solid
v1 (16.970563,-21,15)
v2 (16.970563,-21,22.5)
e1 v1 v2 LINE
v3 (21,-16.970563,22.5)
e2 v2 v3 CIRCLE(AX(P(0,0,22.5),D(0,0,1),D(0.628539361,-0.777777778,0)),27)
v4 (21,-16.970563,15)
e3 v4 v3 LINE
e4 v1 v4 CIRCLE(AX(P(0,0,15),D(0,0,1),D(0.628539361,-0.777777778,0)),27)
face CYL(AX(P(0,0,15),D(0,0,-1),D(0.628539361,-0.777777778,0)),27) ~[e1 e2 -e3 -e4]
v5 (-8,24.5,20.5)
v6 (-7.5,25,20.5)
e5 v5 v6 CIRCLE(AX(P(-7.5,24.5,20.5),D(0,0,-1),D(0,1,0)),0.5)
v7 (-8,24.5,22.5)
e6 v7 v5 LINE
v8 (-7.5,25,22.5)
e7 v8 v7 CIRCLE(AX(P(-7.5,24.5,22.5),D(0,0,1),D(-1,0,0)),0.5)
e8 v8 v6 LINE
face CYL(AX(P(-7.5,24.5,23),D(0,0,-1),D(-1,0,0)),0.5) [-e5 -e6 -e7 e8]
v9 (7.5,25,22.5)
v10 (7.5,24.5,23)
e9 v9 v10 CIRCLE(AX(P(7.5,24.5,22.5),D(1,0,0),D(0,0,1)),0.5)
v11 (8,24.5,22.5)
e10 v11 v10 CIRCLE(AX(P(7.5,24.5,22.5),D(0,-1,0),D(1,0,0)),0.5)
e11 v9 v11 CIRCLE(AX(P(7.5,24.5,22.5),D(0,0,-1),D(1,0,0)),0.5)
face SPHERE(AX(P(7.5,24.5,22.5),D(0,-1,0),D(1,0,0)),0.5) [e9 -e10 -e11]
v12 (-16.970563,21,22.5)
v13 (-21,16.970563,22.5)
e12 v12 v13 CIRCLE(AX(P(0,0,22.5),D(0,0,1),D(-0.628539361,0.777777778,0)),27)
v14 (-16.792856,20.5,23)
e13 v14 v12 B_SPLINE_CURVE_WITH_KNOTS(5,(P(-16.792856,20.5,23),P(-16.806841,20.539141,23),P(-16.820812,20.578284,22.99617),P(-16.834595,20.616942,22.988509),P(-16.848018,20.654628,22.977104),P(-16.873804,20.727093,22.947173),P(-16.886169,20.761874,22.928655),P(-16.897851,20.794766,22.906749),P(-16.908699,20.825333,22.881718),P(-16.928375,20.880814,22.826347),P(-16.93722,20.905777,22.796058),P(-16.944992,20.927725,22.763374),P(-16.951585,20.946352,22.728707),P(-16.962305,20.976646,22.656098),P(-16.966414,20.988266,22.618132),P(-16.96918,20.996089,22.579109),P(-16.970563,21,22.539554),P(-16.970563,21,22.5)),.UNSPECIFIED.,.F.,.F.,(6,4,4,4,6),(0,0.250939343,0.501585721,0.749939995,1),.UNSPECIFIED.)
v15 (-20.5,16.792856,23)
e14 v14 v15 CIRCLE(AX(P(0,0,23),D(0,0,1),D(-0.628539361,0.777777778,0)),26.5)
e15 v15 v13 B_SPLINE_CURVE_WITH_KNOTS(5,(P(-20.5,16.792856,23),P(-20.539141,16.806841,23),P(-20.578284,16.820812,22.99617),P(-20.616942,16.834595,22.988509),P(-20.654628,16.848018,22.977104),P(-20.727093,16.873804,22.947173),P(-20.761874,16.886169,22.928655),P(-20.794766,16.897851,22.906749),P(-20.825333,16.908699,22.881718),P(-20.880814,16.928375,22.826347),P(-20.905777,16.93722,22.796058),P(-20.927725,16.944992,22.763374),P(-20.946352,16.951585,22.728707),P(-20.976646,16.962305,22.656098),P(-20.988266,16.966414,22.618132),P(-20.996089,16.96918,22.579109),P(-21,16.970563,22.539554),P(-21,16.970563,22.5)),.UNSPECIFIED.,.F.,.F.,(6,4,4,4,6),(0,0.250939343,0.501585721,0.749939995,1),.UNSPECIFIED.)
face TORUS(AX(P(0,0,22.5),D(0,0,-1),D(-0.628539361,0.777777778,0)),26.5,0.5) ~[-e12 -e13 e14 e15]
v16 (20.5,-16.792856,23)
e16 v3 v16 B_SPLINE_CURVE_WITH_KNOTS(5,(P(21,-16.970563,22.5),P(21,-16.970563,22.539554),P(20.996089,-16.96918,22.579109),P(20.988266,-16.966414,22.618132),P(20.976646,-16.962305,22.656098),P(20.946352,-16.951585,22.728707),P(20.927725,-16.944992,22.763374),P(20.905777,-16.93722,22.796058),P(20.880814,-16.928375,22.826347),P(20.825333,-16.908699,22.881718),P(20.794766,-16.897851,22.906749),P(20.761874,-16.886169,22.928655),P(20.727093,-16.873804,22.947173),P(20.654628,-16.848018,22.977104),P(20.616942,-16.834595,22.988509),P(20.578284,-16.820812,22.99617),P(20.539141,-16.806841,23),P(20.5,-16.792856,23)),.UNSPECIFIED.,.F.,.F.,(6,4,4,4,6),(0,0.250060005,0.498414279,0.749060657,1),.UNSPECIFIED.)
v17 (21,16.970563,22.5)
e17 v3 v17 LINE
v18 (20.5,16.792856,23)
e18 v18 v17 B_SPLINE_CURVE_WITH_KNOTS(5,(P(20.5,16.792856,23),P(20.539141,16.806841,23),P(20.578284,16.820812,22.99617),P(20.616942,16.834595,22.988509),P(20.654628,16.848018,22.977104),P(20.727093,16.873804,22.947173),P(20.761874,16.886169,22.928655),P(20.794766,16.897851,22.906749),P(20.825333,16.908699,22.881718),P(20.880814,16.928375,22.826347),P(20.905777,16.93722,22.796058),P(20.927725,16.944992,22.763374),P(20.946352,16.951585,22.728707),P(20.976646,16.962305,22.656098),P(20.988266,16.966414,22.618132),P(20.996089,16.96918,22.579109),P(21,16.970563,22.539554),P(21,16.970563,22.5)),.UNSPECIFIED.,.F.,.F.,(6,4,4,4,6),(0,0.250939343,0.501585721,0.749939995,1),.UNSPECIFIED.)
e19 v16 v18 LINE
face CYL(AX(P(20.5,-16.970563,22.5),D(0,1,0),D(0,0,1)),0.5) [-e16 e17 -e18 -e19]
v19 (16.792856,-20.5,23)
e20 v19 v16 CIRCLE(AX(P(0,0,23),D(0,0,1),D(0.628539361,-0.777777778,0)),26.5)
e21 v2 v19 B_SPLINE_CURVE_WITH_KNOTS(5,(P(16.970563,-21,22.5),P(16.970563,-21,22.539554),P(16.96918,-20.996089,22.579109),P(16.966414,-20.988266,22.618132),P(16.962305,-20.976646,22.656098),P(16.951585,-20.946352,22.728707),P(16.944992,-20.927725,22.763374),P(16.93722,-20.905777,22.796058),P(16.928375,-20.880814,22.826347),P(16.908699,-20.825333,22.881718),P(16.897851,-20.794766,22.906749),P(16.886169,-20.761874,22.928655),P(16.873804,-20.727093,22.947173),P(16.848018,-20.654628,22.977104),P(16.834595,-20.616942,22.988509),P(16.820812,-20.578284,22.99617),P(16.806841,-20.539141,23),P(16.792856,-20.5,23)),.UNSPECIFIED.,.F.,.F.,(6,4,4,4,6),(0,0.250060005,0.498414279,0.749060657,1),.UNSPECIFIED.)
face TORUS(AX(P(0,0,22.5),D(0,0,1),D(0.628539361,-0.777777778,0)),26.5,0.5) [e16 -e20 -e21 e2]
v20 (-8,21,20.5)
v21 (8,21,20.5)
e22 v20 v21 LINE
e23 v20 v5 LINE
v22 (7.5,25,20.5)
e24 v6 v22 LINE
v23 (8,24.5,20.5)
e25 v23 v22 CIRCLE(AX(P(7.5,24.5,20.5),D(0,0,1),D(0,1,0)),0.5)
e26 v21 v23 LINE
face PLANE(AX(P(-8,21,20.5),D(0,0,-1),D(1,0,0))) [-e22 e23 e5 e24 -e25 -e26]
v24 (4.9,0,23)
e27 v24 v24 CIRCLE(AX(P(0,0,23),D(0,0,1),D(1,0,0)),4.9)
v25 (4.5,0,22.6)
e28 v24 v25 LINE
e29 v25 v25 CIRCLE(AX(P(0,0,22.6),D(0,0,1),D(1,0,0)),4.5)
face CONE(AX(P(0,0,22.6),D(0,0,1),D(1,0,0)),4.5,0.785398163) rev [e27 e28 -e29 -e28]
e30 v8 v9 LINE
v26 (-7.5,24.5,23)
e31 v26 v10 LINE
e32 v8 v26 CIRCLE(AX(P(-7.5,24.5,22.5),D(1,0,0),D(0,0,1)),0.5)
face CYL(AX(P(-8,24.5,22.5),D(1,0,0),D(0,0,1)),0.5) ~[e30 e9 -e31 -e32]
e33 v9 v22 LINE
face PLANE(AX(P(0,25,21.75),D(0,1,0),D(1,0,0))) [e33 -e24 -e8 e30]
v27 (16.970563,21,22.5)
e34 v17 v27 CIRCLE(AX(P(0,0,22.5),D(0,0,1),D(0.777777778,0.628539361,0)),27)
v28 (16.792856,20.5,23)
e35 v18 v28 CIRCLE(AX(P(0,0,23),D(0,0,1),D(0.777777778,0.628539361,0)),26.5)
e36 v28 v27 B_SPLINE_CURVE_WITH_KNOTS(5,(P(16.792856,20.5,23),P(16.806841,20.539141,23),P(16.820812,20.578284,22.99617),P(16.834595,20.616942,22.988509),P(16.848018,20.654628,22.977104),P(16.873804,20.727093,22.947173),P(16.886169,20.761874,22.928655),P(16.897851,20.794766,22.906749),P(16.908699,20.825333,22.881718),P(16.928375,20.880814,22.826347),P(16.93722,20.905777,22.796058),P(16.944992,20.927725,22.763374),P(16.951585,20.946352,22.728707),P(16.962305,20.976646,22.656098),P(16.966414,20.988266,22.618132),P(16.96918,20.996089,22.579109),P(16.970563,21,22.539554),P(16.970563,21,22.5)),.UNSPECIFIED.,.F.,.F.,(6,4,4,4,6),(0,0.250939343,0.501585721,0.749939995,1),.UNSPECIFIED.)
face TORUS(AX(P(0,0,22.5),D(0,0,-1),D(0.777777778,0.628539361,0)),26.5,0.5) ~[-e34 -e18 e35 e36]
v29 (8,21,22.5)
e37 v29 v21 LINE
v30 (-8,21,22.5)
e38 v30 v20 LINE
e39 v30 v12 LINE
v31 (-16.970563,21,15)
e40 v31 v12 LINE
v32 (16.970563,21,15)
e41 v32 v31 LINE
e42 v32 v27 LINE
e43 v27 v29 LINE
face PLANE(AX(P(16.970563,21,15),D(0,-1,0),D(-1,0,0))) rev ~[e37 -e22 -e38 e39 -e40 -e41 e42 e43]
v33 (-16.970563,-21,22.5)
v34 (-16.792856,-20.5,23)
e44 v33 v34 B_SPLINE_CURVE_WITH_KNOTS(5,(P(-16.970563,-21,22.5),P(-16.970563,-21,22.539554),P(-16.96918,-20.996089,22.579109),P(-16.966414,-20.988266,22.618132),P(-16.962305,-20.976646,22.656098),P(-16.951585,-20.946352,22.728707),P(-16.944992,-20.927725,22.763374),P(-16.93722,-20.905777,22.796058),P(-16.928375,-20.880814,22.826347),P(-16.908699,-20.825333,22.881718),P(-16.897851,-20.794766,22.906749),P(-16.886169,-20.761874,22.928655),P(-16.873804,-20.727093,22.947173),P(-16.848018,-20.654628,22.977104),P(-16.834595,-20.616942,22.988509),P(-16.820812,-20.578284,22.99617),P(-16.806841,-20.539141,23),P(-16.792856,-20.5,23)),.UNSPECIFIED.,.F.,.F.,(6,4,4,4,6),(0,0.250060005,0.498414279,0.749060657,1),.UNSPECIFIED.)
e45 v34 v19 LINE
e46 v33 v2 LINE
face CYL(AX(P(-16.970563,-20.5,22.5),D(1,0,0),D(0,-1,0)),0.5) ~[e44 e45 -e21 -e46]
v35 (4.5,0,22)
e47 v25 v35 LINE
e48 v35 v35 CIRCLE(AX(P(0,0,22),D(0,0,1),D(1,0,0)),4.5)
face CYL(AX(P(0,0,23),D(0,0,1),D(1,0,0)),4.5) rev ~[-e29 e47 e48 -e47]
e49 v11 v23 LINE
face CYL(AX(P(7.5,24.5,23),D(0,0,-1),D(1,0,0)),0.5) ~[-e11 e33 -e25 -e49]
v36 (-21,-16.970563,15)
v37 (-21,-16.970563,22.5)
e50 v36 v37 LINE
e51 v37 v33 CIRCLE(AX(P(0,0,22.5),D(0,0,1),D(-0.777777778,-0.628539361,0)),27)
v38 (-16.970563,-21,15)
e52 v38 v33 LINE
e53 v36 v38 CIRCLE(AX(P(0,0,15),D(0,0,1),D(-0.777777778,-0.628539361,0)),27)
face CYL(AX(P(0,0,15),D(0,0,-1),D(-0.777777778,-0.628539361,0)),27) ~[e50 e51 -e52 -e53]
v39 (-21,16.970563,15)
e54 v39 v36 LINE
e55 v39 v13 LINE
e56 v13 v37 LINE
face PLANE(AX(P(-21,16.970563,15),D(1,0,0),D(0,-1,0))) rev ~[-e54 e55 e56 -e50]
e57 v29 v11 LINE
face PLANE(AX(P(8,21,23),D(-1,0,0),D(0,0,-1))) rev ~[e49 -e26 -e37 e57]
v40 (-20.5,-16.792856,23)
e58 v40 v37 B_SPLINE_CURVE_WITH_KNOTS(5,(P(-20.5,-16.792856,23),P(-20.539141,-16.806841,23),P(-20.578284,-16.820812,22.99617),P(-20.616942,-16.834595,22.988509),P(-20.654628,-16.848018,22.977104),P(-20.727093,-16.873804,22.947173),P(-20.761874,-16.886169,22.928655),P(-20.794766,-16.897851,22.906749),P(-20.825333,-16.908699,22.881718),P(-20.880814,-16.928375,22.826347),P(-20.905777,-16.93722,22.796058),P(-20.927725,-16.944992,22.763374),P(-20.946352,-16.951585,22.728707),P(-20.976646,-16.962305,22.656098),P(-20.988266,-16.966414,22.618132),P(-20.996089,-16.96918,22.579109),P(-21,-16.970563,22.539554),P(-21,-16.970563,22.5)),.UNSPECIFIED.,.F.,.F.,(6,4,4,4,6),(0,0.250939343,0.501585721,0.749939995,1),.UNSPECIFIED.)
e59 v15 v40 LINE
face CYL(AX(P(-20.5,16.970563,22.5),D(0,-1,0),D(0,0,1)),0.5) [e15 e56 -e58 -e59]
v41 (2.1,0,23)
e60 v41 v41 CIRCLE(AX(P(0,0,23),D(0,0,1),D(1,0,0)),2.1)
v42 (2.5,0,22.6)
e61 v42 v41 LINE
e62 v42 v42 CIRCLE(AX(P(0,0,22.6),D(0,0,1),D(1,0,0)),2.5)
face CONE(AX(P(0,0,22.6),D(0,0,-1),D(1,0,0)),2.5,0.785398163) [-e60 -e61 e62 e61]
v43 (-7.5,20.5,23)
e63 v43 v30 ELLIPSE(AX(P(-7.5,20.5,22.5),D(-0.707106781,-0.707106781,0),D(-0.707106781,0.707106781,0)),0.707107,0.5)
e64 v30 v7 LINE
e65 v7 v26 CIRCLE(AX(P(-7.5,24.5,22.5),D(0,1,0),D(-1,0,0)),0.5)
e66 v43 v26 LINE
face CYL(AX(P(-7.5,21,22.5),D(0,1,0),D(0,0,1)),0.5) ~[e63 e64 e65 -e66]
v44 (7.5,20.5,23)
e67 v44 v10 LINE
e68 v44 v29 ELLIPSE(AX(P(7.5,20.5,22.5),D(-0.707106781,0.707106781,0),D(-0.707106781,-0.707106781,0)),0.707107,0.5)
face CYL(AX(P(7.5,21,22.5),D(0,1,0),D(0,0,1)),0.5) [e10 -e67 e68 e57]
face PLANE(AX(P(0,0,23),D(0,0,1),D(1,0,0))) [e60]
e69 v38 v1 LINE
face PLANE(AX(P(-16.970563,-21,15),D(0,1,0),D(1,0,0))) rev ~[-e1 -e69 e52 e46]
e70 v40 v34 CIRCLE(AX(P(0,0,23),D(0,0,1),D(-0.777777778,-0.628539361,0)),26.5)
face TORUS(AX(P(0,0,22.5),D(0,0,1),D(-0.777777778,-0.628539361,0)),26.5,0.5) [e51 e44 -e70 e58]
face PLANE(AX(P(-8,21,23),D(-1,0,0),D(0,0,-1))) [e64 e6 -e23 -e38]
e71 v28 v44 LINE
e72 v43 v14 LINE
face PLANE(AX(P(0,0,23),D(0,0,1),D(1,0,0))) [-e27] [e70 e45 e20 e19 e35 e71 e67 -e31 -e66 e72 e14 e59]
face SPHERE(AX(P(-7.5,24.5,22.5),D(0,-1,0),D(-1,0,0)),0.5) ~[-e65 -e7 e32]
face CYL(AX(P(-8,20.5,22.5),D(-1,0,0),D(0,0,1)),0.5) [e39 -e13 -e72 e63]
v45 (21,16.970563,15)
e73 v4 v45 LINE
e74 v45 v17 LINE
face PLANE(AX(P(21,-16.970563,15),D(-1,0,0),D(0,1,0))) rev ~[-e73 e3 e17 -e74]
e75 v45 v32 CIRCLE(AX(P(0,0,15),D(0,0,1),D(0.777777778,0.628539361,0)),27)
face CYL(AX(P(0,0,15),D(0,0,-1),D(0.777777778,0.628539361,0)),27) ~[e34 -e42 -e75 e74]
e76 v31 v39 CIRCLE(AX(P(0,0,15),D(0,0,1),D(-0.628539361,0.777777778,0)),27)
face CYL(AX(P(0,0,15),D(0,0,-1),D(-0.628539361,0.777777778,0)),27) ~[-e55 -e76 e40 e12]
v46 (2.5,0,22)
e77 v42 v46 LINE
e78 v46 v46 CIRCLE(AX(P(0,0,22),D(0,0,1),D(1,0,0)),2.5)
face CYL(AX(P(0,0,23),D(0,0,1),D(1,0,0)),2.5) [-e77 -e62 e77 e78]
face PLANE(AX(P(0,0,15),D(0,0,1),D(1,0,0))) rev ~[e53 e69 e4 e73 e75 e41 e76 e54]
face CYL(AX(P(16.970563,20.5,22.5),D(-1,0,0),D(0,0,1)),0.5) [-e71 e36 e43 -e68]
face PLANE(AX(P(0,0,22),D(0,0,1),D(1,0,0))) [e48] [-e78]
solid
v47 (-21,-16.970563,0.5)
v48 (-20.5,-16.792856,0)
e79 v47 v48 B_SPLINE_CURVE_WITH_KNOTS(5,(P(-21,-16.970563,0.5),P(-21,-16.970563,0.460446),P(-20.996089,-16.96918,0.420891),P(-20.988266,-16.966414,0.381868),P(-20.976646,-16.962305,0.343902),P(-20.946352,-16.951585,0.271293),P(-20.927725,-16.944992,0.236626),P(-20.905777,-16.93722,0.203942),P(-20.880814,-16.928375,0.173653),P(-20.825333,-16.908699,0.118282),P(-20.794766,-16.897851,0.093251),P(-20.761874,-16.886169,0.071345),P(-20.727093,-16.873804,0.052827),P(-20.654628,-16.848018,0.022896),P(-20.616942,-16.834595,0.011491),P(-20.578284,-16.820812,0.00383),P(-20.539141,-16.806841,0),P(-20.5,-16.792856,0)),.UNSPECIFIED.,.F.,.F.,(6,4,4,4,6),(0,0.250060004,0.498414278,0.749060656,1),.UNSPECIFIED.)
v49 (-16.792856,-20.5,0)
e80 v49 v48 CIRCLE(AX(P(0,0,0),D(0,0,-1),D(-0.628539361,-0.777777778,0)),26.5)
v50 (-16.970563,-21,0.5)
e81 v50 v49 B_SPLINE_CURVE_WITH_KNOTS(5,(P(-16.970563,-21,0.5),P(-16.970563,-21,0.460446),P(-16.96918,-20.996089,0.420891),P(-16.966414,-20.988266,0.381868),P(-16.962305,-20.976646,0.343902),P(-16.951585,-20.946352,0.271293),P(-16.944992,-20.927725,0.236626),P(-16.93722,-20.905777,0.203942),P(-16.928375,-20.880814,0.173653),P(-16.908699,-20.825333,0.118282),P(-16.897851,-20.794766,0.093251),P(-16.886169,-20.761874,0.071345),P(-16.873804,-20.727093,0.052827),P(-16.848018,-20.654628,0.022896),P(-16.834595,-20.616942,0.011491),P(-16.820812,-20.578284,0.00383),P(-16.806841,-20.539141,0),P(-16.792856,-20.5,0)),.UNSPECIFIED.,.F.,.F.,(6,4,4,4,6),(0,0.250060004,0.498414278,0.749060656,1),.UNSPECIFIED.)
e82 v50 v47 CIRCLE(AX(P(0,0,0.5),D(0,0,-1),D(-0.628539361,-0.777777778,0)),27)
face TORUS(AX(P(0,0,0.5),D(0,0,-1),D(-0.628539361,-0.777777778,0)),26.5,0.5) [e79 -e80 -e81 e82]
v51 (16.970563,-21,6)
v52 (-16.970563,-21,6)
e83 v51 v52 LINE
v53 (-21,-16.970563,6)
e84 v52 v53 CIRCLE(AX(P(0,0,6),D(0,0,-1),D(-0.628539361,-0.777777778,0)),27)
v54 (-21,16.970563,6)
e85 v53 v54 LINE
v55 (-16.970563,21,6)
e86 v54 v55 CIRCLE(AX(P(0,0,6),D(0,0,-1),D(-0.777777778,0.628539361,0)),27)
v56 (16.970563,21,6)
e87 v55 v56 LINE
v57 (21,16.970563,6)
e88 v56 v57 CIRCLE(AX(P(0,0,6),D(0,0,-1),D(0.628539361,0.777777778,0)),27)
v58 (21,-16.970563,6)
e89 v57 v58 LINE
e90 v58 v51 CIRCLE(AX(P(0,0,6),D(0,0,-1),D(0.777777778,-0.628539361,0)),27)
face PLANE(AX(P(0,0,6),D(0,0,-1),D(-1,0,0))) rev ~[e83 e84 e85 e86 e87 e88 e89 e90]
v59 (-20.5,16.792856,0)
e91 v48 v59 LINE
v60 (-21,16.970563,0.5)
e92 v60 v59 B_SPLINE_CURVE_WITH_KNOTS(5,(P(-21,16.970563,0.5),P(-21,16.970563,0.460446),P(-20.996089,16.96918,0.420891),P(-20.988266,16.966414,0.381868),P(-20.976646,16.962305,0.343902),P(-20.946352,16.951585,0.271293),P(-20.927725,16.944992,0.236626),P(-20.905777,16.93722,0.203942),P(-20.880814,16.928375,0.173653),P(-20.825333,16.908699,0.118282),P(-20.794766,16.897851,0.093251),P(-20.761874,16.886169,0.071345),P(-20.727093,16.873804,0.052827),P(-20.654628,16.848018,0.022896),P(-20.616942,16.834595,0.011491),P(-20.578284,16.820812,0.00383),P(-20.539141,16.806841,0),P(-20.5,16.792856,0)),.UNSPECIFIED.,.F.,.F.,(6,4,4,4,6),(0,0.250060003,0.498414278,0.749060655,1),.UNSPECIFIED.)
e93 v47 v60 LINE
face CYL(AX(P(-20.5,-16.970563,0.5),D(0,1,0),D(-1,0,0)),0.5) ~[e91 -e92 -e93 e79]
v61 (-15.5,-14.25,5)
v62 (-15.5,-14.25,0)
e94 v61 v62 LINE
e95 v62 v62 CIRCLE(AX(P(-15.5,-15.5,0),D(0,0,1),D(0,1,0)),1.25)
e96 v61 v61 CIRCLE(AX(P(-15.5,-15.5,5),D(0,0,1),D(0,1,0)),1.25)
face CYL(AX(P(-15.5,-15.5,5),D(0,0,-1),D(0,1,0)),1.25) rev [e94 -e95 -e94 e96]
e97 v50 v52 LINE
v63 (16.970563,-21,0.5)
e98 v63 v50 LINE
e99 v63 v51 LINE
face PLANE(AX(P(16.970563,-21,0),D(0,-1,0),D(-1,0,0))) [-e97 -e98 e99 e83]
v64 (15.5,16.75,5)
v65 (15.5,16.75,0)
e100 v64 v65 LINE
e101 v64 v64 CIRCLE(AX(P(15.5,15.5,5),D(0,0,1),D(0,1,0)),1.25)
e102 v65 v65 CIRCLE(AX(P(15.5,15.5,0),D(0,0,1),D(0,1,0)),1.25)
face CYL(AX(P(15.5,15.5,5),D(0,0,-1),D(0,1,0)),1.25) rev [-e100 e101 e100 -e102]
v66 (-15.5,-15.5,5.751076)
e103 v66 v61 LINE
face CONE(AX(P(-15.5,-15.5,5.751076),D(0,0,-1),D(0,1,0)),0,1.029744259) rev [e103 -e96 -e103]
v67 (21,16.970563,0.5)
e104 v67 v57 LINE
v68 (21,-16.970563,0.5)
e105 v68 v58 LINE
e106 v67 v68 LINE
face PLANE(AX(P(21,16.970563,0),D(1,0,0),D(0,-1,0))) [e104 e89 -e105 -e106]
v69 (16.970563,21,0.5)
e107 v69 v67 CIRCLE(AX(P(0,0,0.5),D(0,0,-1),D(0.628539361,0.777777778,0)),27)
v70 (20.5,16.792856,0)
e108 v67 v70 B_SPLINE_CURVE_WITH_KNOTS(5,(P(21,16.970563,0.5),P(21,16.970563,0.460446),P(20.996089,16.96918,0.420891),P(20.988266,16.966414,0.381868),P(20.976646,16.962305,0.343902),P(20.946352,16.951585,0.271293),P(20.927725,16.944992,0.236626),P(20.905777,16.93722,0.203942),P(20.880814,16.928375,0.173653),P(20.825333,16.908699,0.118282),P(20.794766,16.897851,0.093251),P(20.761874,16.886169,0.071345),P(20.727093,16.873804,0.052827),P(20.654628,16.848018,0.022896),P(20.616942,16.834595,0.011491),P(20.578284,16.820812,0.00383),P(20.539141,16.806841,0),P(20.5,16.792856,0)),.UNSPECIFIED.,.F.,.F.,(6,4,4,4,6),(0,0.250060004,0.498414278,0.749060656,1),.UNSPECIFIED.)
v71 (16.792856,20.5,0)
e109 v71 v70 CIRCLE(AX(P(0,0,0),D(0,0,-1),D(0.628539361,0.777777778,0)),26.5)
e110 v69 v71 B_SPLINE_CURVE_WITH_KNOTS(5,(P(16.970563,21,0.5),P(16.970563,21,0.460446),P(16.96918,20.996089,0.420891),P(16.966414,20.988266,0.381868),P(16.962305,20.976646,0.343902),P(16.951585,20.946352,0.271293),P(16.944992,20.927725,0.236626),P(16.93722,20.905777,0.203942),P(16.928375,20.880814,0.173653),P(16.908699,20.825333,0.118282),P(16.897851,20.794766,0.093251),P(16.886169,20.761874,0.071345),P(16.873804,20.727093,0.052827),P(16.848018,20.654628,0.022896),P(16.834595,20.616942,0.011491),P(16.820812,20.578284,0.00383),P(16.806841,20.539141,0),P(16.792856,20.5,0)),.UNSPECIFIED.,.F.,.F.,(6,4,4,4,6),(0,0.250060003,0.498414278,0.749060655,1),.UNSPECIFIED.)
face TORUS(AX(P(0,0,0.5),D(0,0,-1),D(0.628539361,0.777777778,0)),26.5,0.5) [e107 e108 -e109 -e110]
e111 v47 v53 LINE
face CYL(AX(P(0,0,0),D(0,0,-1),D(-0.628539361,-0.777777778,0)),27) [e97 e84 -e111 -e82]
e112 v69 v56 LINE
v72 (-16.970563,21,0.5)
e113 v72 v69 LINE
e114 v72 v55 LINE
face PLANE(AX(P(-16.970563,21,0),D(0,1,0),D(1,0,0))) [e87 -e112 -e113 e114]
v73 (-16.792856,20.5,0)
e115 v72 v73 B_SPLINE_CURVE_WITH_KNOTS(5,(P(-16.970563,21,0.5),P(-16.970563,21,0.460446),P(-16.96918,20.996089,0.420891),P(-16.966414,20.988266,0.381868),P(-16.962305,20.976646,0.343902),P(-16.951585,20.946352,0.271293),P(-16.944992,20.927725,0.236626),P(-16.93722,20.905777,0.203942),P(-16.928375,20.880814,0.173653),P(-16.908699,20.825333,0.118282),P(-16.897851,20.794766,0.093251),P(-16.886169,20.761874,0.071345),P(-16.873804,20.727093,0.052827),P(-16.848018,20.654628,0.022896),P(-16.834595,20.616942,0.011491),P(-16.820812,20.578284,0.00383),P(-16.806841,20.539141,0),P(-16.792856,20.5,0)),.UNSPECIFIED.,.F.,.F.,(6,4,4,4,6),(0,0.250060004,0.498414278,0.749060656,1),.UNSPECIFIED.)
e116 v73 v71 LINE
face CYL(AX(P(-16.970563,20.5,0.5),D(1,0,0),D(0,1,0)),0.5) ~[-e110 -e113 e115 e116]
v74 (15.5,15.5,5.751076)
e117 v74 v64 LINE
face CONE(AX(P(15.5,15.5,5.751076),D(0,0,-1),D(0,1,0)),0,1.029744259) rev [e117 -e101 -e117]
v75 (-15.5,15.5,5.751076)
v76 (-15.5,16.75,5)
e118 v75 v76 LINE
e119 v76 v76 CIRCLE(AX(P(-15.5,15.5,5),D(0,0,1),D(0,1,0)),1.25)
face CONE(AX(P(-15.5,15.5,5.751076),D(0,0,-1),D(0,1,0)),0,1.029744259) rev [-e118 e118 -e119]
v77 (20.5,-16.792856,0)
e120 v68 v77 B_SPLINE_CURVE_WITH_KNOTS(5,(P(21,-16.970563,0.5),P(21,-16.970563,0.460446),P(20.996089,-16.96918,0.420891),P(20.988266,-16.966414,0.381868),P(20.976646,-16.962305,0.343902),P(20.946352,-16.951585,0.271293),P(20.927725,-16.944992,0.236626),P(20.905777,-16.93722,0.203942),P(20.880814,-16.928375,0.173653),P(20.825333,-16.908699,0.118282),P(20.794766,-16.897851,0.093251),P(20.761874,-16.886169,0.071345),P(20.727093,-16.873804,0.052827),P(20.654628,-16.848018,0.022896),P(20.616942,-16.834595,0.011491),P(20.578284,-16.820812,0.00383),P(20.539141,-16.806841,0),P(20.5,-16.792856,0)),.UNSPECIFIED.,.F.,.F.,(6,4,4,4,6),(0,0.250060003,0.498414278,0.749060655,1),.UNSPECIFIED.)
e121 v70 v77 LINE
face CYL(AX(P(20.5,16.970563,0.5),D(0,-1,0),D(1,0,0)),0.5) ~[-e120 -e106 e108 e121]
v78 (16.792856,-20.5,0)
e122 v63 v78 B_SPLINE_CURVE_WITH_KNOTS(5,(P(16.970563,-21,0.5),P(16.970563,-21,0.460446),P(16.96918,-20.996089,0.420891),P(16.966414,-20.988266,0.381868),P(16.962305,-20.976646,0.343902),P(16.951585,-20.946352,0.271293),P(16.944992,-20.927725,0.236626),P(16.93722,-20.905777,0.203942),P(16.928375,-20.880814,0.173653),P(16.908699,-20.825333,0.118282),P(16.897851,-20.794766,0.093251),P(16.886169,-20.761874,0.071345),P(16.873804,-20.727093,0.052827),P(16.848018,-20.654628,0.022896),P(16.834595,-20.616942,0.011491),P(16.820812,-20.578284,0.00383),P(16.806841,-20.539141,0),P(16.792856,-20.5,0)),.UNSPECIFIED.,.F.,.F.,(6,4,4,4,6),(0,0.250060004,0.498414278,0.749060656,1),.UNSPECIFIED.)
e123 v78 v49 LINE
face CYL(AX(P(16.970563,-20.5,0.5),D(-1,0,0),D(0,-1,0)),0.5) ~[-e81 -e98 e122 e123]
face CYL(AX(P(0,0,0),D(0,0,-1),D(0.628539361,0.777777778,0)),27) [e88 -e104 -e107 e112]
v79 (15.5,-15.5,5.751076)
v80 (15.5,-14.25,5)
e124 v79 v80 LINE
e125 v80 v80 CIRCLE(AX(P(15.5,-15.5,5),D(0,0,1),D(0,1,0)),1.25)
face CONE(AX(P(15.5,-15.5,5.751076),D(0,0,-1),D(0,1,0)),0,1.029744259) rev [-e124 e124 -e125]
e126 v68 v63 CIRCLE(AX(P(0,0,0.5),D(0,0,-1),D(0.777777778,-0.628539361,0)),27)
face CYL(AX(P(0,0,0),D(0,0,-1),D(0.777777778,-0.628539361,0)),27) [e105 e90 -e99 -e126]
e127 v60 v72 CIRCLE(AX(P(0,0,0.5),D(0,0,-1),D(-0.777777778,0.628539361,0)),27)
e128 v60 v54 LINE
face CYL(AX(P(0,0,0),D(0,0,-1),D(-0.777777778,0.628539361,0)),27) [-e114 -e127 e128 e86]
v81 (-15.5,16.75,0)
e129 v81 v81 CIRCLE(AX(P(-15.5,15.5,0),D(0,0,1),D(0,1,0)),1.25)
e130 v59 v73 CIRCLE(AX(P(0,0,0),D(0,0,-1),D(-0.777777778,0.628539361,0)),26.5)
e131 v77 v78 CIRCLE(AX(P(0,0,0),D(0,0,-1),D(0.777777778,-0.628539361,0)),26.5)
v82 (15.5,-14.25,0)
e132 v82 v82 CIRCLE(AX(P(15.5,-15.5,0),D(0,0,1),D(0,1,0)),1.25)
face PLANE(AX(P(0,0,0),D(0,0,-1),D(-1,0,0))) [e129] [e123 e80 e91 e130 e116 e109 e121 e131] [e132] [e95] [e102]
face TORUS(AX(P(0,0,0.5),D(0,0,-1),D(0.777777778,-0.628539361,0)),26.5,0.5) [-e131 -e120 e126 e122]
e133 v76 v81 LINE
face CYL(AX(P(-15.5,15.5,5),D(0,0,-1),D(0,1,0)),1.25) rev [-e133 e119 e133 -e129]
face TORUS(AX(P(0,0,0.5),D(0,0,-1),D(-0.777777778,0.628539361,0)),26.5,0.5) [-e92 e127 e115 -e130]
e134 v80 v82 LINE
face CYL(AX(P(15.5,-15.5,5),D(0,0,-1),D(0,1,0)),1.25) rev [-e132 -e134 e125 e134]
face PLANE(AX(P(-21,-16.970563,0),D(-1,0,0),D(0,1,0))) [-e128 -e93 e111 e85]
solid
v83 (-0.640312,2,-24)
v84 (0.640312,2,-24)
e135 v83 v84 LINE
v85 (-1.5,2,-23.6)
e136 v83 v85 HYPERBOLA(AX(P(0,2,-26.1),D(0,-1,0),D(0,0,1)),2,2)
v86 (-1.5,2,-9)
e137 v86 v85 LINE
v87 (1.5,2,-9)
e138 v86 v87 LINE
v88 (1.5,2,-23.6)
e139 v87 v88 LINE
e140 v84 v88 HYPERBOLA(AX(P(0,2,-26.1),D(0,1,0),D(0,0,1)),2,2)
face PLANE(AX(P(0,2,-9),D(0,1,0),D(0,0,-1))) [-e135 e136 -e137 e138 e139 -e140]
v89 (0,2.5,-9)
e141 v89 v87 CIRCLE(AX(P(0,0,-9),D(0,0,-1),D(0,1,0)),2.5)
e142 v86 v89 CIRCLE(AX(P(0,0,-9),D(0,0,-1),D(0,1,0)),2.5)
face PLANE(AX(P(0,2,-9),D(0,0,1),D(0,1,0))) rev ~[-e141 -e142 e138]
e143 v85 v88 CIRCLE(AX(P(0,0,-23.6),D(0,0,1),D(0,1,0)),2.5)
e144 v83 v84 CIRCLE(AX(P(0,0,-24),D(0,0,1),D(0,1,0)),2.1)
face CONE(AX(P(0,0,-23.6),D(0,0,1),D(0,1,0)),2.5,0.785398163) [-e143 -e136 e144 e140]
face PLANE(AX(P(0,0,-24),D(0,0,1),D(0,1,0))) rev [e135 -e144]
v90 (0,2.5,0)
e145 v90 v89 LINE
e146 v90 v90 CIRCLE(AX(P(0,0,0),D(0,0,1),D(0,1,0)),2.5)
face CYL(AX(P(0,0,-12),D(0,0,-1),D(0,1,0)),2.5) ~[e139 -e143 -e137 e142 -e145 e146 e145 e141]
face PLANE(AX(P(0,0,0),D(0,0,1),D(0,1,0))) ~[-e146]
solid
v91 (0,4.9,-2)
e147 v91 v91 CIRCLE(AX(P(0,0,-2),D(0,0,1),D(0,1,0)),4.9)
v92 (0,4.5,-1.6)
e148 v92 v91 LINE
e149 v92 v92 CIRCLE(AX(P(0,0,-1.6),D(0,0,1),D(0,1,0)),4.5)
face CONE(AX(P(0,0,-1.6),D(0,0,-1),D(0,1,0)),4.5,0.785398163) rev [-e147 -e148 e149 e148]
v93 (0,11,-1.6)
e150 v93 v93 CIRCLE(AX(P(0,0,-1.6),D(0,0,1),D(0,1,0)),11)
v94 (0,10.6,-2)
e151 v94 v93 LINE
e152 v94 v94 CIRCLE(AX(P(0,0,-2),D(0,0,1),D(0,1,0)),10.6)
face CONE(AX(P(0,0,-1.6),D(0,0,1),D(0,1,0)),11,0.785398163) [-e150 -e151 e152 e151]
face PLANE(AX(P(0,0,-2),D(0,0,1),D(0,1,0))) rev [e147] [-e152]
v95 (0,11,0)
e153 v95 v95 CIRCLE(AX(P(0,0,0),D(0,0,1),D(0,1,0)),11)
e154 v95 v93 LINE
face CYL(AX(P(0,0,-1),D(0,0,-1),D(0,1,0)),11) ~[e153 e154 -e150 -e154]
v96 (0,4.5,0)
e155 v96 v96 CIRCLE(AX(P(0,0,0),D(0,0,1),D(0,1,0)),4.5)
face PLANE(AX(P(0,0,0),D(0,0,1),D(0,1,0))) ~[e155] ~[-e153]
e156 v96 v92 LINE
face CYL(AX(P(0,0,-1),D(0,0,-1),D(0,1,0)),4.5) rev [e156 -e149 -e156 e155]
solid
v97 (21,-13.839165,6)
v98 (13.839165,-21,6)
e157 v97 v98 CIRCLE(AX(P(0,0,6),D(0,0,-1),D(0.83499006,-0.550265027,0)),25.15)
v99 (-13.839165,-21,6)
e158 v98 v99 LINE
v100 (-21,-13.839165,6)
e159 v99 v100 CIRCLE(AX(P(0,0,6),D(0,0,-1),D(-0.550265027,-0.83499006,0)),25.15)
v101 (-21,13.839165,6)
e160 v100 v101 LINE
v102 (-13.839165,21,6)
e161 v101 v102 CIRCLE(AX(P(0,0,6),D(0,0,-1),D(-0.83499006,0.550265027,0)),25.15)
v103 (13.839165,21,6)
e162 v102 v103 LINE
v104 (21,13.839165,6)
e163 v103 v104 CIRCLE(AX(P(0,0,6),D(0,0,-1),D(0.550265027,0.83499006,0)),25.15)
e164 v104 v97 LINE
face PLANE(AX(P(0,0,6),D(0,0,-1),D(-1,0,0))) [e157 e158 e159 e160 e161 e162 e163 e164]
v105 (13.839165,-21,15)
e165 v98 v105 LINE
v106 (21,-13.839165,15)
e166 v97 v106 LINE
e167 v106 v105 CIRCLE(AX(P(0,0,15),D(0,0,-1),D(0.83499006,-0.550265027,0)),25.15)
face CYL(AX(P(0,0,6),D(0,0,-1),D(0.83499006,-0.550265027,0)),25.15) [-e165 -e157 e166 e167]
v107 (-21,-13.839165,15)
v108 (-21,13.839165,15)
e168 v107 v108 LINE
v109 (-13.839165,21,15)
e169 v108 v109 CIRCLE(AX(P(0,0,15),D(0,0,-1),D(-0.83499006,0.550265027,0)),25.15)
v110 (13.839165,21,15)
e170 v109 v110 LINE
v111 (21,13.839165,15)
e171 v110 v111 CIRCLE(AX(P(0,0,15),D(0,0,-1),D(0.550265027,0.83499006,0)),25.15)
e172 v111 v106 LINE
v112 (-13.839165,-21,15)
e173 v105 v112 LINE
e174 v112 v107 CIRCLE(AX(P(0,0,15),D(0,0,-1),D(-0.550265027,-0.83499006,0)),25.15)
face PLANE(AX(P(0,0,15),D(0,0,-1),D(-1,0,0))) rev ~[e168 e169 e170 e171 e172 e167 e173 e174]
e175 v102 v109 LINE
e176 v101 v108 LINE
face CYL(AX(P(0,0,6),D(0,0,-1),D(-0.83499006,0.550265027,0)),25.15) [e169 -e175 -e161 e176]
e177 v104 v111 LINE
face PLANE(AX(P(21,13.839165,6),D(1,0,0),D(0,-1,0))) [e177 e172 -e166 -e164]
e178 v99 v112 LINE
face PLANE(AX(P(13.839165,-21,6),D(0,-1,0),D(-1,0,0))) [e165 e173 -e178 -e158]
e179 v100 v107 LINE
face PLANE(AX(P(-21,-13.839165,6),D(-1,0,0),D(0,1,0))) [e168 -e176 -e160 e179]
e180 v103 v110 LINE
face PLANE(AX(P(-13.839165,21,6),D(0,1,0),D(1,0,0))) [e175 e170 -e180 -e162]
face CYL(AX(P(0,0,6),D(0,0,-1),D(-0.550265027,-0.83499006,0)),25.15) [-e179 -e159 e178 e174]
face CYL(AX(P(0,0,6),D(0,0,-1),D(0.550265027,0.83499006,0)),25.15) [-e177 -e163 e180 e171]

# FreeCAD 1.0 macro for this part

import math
import FreeCAD as App
import Part
import Sketcher
Q = App.Units.Quantity


def edges_at(feature, points):
    """Names of the edges that pass closest to the given points."""
    edges = feature.Shape.Edges
    near = lambda p: min(range(len(edges)), key=lambda i: edges[i].distToShape(Part.Vertex(*p))[0])
    return sorted({f"Edge{near(p) + 1}" for p in points})

doc = App.newDocument("Part")
params = doc.addObject("Spreadsheet::Sheet", "Params")
for row, (alias, value) in enumerate([
    ("sketch1_radius", "27 mm"),
    ("pad1_length", "6 mm"),
    ("fillet_radius", "0.5 mm"),
    ("sketch2_height", "5 mm"),
    ("sketch2_width", "1.25 mm"),
    ("groove_angle", "360 deg"),
    ("linearpattern_pitch", "31 mm"),
    ("linearpattern2_pitch", "43.84062 mm"),
    ("linearpattern3_pitch", "31 mm"),
    ("sketch3_radius", "25.15 mm"),
    ("pad2_length", "9 mm"),
    ("sketch4_radius", "27 mm"),
    ("pad3_length", "8 mm"),
    ("sketch5_width", "16 mm"),
    ("sketch5_height", "2.5 mm"),
    ("pad4_length", "4 mm"),
    ("fillet2_radius", "0.5 mm"),
    ("sketch6_diameter", "9 mm"),
    ("sketch6_diameter2", "5 mm"),
    ("pocket1_length", "1 mm"),
    ("chamfer_size", "0.4 mm"),
    ("sketch7_height", "2 mm"),
    ("sketch7_height2", "24 mm"),
    ("sketch7_width", "6.5 mm"),
    ("sketch7_width2", "2.5 mm"),
    ("revolution_angle", "360 deg"),
    ("chamfer2_size", "0.4 mm"),
    ("chamfer3_size", "0.4 mm"),
    ("sketch8_height", "15 mm"),
    ("sketch8_width", "0.5 mm"),
], start=1):
    params.set(f"A{row}", alias)
    params.set(f"B{row}", "=" + value)
    params.setAlias(f"B{row}", alias)

body = doc.addObject("PartDesign::Body", "Body")

# Sketch on XY plane
sketch1 = body.newObject("Sketcher::SketchObject", "Sketch")
sketch1.AttachmentSupport = (doc.getObject("XY_Plane"), [""])
sketch1.MapMode = "FlatFace"
sketch1.addGeometry(Part.LineSegment(App.Vector(21, -17, 0), App.Vector(21, 17, 0)), False)
sketch1.addGeometry(Part.ArcOfCircle(Part.Circle(App.Vector(0, 0, 0), App.Vector(0, 0, 1), 27), math.radians(38.94), math.radians(51.06)), False)
sketch1.addGeometry(Part.LineSegment(App.Vector(17, 21, 0), App.Vector(-17, 21, 0)), False)
sketch1.addGeometry(Part.ArcOfCircle(Part.Circle(App.Vector(0, 0, 0), App.Vector(0, 0, 1), 27), math.radians(128.94), math.radians(141.06)), False)
sketch1.addGeometry(Part.LineSegment(App.Vector(-21, 17, 0), App.Vector(-21, -17, 0)), False)
sketch1.addGeometry(Part.ArcOfCircle(Part.Circle(App.Vector(0, 0, 0), App.Vector(0, 0, 1), 27), math.radians(-141.06), math.radians(-128.94)), False)
sketch1.addGeometry(Part.LineSegment(App.Vector(-17, -21, 0), App.Vector(17, -21, 0)), False)
sketch1.addGeometry(Part.ArcOfCircle(Part.Circle(App.Vector(0, 0, 0), App.Vector(0, 0, 1), 27), math.radians(-51.06), math.radians(-38.94)), False)
sketch1.addConstraint(Sketcher.Constraint("Coincident", 0, 2, 1, 1))
sketch1.addConstraint(Sketcher.Constraint("Coincident", 1, 2, 2, 1))
sketch1.addConstraint(Sketcher.Constraint("Coincident", 2, 2, 3, 1))
sketch1.addConstraint(Sketcher.Constraint("Coincident", 3, 2, 4, 1))
sketch1.addConstraint(Sketcher.Constraint("Coincident", 4, 2, 5, 1))
sketch1.addConstraint(Sketcher.Constraint("Coincident", 5, 2, 6, 1))
sketch1.addConstraint(Sketcher.Constraint("Coincident", 6, 2, 7, 1))
sketch1.addConstraint(Sketcher.Constraint("Coincident", 7, 2, 0, 1))
sketch1.addConstraint(Sketcher.Constraint("Vertical", 0))
sketch1.addConstraint(Sketcher.Constraint("Horizontal", 2))
sketch1.addConstraint(Sketcher.Constraint("Vertical", 4))
sketch1.addConstraint(Sketcher.Constraint("Horizontal", 6))
sketch1.addConstraint(Sketcher.Constraint("Coincident", 1, 3, -1, 1))
sketch1.addConstraint(Sketcher.Constraint("Coincident", 3, 3, -1, 1))
sketch1.addConstraint(Sketcher.Constraint("Coincident", 5, 3, -1, 1))
sketch1.addConstraint(Sketcher.Constraint("Coincident", 7, 3, -1, 1))
sketch1.addConstraint(Sketcher.Constraint("Equal", 1, 3))
sketch1.addConstraint(Sketcher.Constraint("Equal", 3, 5))
sketch1.addConstraint(Sketcher.Constraint("Equal", 5, 7))
sketch1.addConstraint(Sketcher.Constraint("Horizontal", 0, 2, 3, 2))
sketch1.addConstraint(Sketcher.Constraint("Vertical", 2, 2, 5, 2))
sketch1.addConstraint(Sketcher.Constraint("Equal", 6, 0))
sketch1.addConstraint(Sketcher.Constraint("Radius", 1, Q("27 mm")))
sketch1.addConstraint(Sketcher.Constraint("DistanceX", -1, 1, 0, 2, Q("21 mm")))
sketch1.setExpression("Constraints[22]", "Params.sketch1_radius")
pad1 = body.newObject("PartDesign::Pad", "Pad")
pad1.Profile = sketch1
pad1.setExpression("Length", "Params.pad1_length")
doc.recompute()

fillet = body.newObject("PartDesign::Fillet", "Fillet")
fillet.Base = (pad1, edges_at(pad1, [
    (0, 21, 0),
    (19.092, 19.092, 0),
    (21, 0, 0),
    (19.092, -19.092, 0),
    (0, -21, 0),
    (-19.092, -19.092, 0),
    (-21, 0, 0),
    (-19.092, 19.092, 0),
]))
fillet.setExpression("Radius", "Params.fillet_radius")

# Sketch on YZ plane
sketch2 = body.newObject("Sketcher::SketchObject", "Sketch001")
sketch2.AttachmentSupport = (doc.getObject("YZ_Plane"), [""])
sketch2.MapMode = "FlatFace"
sketch2.AttachmentOffset = App.Placement(App.Vector(0, 0, 15.5), App.Rotation())
sketch2.addGeometry(Part.LineSegment(App.Vector(-15.5, 5.8, 0), App.Vector(-15.5, 0, 0)), False)
sketch2.addGeometry(Part.LineSegment(App.Vector(-15.5, 0, 0), App.Vector(-14.2, 0, 0)), False)
sketch2.addGeometry(Part.LineSegment(App.Vector(-14.2, 0, 0), App.Vector(-14.2, 5, 0)), False)
sketch2.addGeometry(Part.LineSegment(App.Vector(-14.2, 5, 0), App.Vector(-15.5, 5.8, 0)), False)
sketch2.addGeometry(Part.LineSegment(App.Vector(-15.5, 0, 0), App.Vector(-15.5, 5.8, 0)), True)  # axis
sketch2.addConstraint(Sketcher.Constraint("Coincident", 0, 2, 1, 1))
sketch2.addConstraint(Sketcher.Constraint("Coincident", 1, 2, 2, 1))
sketch2.addConstraint(Sketcher.Constraint("Coincident", 2, 2, 3, 1))
sketch2.addConstraint(Sketcher.Constraint("Coincident", 3, 2, 0, 1))
sketch2.addConstraint(Sketcher.Constraint("Vertical", 0))
sketch2.addConstraint(Sketcher.Constraint("Horizontal", 1))
sketch2.addConstraint(Sketcher.Constraint("Vertical", 2))
sketch2.addConstraint(Sketcher.Constraint("Vertical", 4))
sketch2.addConstraint(Sketcher.Constraint("Coincident", 4, 1, 0, 2))
sketch2.addConstraint(Sketcher.Constraint("PointOnObject", 0, 2, -1))
sketch2.addConstraint(Sketcher.Constraint("Equal", 0, 4))
sketch2.addConstraint(Sketcher.Constraint("DistanceY", 2, 1, 2, 2, Q("5 mm")))
sketch2.addConstraint(Sketcher.Constraint("Angle", 3, Q("149 deg")))
sketch2.addConstraint(Sketcher.Constraint("DistanceX", 1, 1, 1, 2, Q("1.25 mm")))
sketch2.addConstraint(Sketcher.Constraint("DistanceX", 0, 2, -1, 1, Q("15.5 mm")))
sketch2.setExpression("Constraints[11]", "Params.sketch2_height")
sketch2.setExpression("Constraints[13]", "Params.sketch2_width")
groove = body.newObject("PartDesign::Groove", "Groove")
groove.Profile = sketch2
groove.ReferenceAxis = (sketch2, ["Axis0"])
groove.setExpression("Angle", "Params.groove_angle")
doc.recompute()

linearpattern = body.newObject("PartDesign::LinearPattern", "LinearPattern")
linearpattern.Originals = [groove]
linearpattern.Direction = (doc.getObject("Y_Axis"), [""])
linearpattern.Mode = "offset"
linearpattern.setExpression("Offset", "Params.linearpattern_pitch")
linearpattern.Occurrences = 2
body.Tip = linearpattern
doc.recompute()

datumline = body.newObject("PartDesign::Line", "DatumLine")
datumline.Placement = App.Placement(App.Vector(0, 0, 0), App.Rotation(App.Vector(0, 0, 1), App.Vector(-0.707106781, 0.707106781, 0)))
linearpattern2 = body.newObject("PartDesign::LinearPattern", "LinearPattern001")
linearpattern2.Originals = [groove]
linearpattern2.Direction = (datumline, [""])
linearpattern2.Mode = "offset"
linearpattern2.setExpression("Offset", "Params.linearpattern2_pitch")
linearpattern2.Occurrences = 2
body.Tip = linearpattern2
doc.recompute()

linearpattern3 = body.newObject("PartDesign::LinearPattern", "LinearPattern002")
linearpattern3.Originals = [groove]
linearpattern3.Direction = (doc.getObject("X_Axis"), [""])
linearpattern3.Mode = "offset"
linearpattern3.setExpression("Offset", "Params.linearpattern3_pitch")
linearpattern3.Occurrences = 2
linearpattern3.Reversed = True
body.Tip = linearpattern3
body2 = doc.addObject("PartDesign::Body", "Body001")

# Sketch on XY plane
sketch3 = body2.newObject("Sketcher::SketchObject", "Sketch002")
sketch3.AttachmentSupport = (doc.getObject("XY_Plane001"), [""])
sketch3.MapMode = "FlatFace"
sketch3.AttachmentOffset = App.Placement(App.Vector(0, 0, 6), App.Rotation())
sketch3.addGeometry(Part.LineSegment(App.Vector(14, 21, 0), App.Vector(-14, 21, 0)), False)
sketch3.addGeometry(Part.ArcOfCircle(Part.Circle(App.Vector(0, 0, 0), App.Vector(0, 0, 1), 25), math.radians(123), math.radians(147)), False)
sketch3.addGeometry(Part.LineSegment(App.Vector(-21, 14, 0), App.Vector(-21, -14, 0)), False)
sketch3.addGeometry(Part.ArcOfCircle(Part.Circle(App.Vector(0, 0, 0), App.Vector(0, 0, 1), 25), math.radians(-147), math.radians(-123)), False)
sketch3.addGeometry(Part.LineSegment(App.Vector(-14, -21, 0), App.Vector(14, -21, 0)), False)
sketch3.addGeometry(Part.ArcOfCircle(Part.Circle(App.Vector(0, 0, 0), App.Vector(0, 0, 1), 25), math.radians(-57), math.radians(-33)), False)
sketch3.addGeometry(Part.LineSegment(App.Vector(21, -14, 0), App.Vector(21, 14, 0)), False)
sketch3.addGeometry(Part.ArcOfCircle(Part.Circle(App.Vector(0, 0, 0), App.Vector(0, 0, 1), 25), math.radians(33), math.radians(57)), False)
sketch3.addConstraint(Sketcher.Constraint("Coincident", 0, 2, 1, 1))
sketch3.addConstraint(Sketcher.Constraint("Coincident", 1, 2, 2, 1))
sketch3.addConstraint(Sketcher.Constraint("Coincident", 2, 2, 3, 1))
sketch3.addConstraint(Sketcher.Constraint("Coincident", 3, 2, 4, 1))
sketch3.addConstraint(Sketcher.Constraint("Coincident", 4, 2, 5, 1))
sketch3.addConstraint(Sketcher.Constraint("Coincident", 5, 2, 6, 1))
sketch3.addConstraint(Sketcher.Constraint("Coincident", 6, 2, 7, 1))
sketch3.addConstraint(Sketcher.Constraint("Coincident", 7, 2, 0, 1))
sketch3.addConstraint(Sketcher.Constraint("Horizontal", 0))
sketch3.addConstraint(Sketcher.Constraint("Vertical", 2))
sketch3.addConstraint(Sketcher.Constraint("Horizontal", 4))
sketch3.addConstraint(Sketcher.Constraint("Vertical", 6))
sketch3.addConstraint(Sketcher.Constraint("Coincident", 1, 3, -1, 1))
sketch3.addConstraint(Sketcher.Constraint("Coincident", 3, 3, -1, 1))
sketch3.addConstraint(Sketcher.Constraint("Coincident", 5, 3, -1, 1))
sketch3.addConstraint(Sketcher.Constraint("Coincident", 7, 3, -1, 1))
sketch3.addConstraint(Sketcher.Constraint("Equal", 1, 3))
sketch3.addConstraint(Sketcher.Constraint("Equal", 3, 5))
sketch3.addConstraint(Sketcher.Constraint("Equal", 5, 7))
sketch3.addConstraint(Sketcher.Constraint("Horizontal", 2, 2, 5, 2))
sketch3.addConstraint(Sketcher.Constraint("Vertical", 0, 2, 3, 2))
sketch3.addConstraint(Sketcher.Constraint("Equal", 4, 2))
sketch3.addConstraint(Sketcher.Constraint("Radius", 1, Q("25.15 mm")))
sketch3.addConstraint(Sketcher.Constraint("DistanceY", -1, 1, 0, 2, Q("21 mm")))
sketch3.setExpression("Constraints[22]", "Params.sketch3_radius")
pad2 = body2.newObject("PartDesign::Pad", "Pad001")
pad2.Profile = sketch3
pad2.setExpression("Length", "Params.pad2_length")
body3 = doc.addObject("PartDesign::Body", "Body002")

# Sketch on XY plane
sketch4 = body3.newObject("Sketcher::SketchObject", "Sketch003")
sketch4.AttachmentSupport = (doc.getObject("XY_Plane002"), [""])
sketch4.MapMode = "FlatFace"
sketch4.AttachmentOffset = App.Placement(App.Vector(0, 0, 15), App.Rotation())
sketch4.addGeometry(Part.LineSegment(App.Vector(-17, -21, 0), App.Vector(17, -21, 0)), False)
sketch4.addGeometry(Part.ArcOfCircle(Part.Circle(App.Vector(0, 0, 0), App.Vector(0, 0, 1), 27), math.radians(-51.06), math.radians(-38.94)), False)
sketch4.addGeometry(Part.LineSegment(App.Vector(21, -17, 0), App.Vector(21, 17, 0)), False)
sketch4.addGeometry(Part.ArcOfCircle(Part.Circle(App.Vector(0, 0, 0), App.Vector(0, 0, 1), 27), math.radians(38.94), math.radians(51.06)), False)
sketch4.addGeometry(Part.LineSegment(App.Vector(17, 21, 0), App.Vector(-17, 21, 0)), False)
sketch4.addGeometry(Part.ArcOfCircle(Part.Circle(App.Vector(0, 0, 0), App.Vector(0, 0, 1), 27), math.radians(128.94), math.radians(141.06)), False)
sketch4.addGeometry(Part.LineSegment(App.Vector(-21, 17, 0), App.Vector(-21, -17, 0)), False)
sketch4.addGeometry(Part.ArcOfCircle(Part.Circle(App.Vector(0, 0, 0), App.Vector(0, 0, 1), 27), math.radians(-141.06), math.radians(-128.94)), False)
sketch4.addConstraint(Sketcher.Constraint("Coincident", 0, 2, 1, 1))
sketch4.addConstraint(Sketcher.Constraint("Coincident", 1, 2, 2, 1))
sketch4.addConstraint(Sketcher.Constraint("Coincident", 2, 2, 3, 1))
sketch4.addConstraint(Sketcher.Constraint("Coincident", 3, 2, 4, 1))
sketch4.addConstraint(Sketcher.Constraint("Coincident", 4, 2, 5, 1))
sketch4.addConstraint(Sketcher.Constraint("Coincident", 5, 2, 6, 1))
sketch4.addConstraint(Sketcher.Constraint("Coincident", 6, 2, 7, 1))
sketch4.addConstraint(Sketcher.Constraint("Coincident", 7, 2, 0, 1))
sketch4.addConstraint(Sketcher.Constraint("Horizontal", 0))
sketch4.addConstraint(Sketcher.Constraint("Vertical", 2))
sketch4.addConstraint(Sketcher.Constraint("Horizontal", 4))
sketch4.addConstraint(Sketcher.Constraint("Vertical", 6))
sketch4.addConstraint(Sketcher.Constraint("Coincident", 1, 3, -1, 1))
sketch4.addConstraint(Sketcher.Constraint("Coincident", 3, 3, -1, 1))
sketch4.addConstraint(Sketcher.Constraint("Coincident", 5, 3, -1, 1))
sketch4.addConstraint(Sketcher.Constraint("Coincident", 7, 3, -1, 1))
sketch4.addConstraint(Sketcher.Constraint("Equal", 1, 3))
sketch4.addConstraint(Sketcher.Constraint("Equal", 3, 5))
sketch4.addConstraint(Sketcher.Constraint("Equal", 5, 7))
sketch4.addConstraint(Sketcher.Constraint("Horizontal", 2, 2, 5, 2))
sketch4.addConstraint(Sketcher.Constraint("Vertical", 0, 2, 3, 2))
sketch4.addConstraint(Sketcher.Constraint("Equal", 4, 2))
sketch4.addConstraint(Sketcher.Constraint("Radius", 1, Q("27 mm")))
sketch4.addConstraint(Sketcher.Constraint("DistanceY", 0, 2, -1, 1, Q("21 mm")))
sketch4.setExpression("Constraints[22]", "Params.sketch4_radius")
pad3 = body3.newObject("PartDesign::Pad", "Pad002")
pad3.Profile = sketch4
pad3.setExpression("Length", "Params.pad3_length")

# Sketch on XZ plane
sketch5 = body3.newObject("Sketcher::SketchObject", "Sketch004")
sketch5.AttachmentSupport = (doc.getObject("XZ_Plane002"), [""])
sketch5.MapMode = "FlatFace"
sketch5.AttachmentOffset = App.Placement(App.Vector(0, 0, -21), App.Rotation())
sketch5.addGeometry(Part.LineSegment(App.Vector(-8, 20.5, 0), App.Vector(-8, 23, 0)), False)
sketch5.addGeometry(Part.LineSegment(App.Vector(-8, 23, 0), App.Vector(8, 23, 0)), False)
sketch5.addGeometry(Part.LineSegment(App.Vector(8, 23, 0), App.Vector(8, 20.5, 0)), False)
sketch5.addGeometry(Part.LineSegment(App.Vector(8, 20.5, 0), App.Vector(-8, 20.5, 0)), False)
sketch5.addConstraint(Sketcher.Constraint("Coincident", 0, 2, 1, 1))
sketch5.addConstraint(Sketcher.Constraint("Coincident", 1, 2, 2, 1))
sketch5.addConstraint(Sketcher.Constraint("Coincident", 2, 2, 3, 1))
sketch5.addConstraint(Sketcher.Constraint("Coincident", 3, 2, 0, 1))
sketch5.addConstraint(Sketcher.Constraint("Vertical", 0))
sketch5.addConstraint(Sketcher.Constraint("Horizontal", 1))
sketch5.addConstraint(Sketcher.Constraint("Vertical", 2))
sketch5.addConstraint(Sketcher.Constraint("Horizontal", 3))
sketch5.addConstraint(Sketcher.Constraint("DistanceX", 1, 1, 1, 2, Q("16 mm")))
sketch5.addConstraint(Sketcher.Constraint("DistanceY", 0, 1, 0, 2, Q("2.5 mm")))
sketch5.addConstraint(Sketcher.Constraint("DistanceX", 0, 2, -1, 1, Q("8 mm")))
sketch5.addConstraint(Sketcher.Constraint("DistanceY", -1, 1, 0, 2, Q("23 mm")))
sketch5.setExpression("Constraints[8]", "Params.sketch5_width")
sketch5.setExpression("Constraints[9]", "Params.sketch5_height")
pad4 = body3.newObject("PartDesign::Pad", "Pad003")
pad4.Profile = sketch5
pad4.setExpression("Length", "Params.pad4_length")
pad4.Reversed = True
doc.recompute()

fillet2 = body3.newObject("PartDesign::Fillet", "Fillet001")
fillet2.Base = (pad4, edges_at(pad4, [
    (19.092, -19.092, 23),
    (21, 0, 23),
    (19.092, 19.092, 23),
    (12.485, 21, 23),
    (-19.092, 19.092, 23),
    (-21, 0, 23),
    (-12.485, 21, 23),
    (8, 23, 23),
    (-8, 23, 23),
    (8, 25, 21.75),
    (-8, 25, 21.75),
    (0, 25, 23),
    (-19.092, -19.092, 23),
    (0, -21, 23),
]))
fillet2.setExpression("Radius", "Params.fillet2_radius")

# Sketch on XY plane
sketch6 = body3.newObject("Sketcher::SketchObject", "Sketch005")
sketch6.AttachmentSupport = (doc.getObject("XY_Plane002"), [""])
sketch6.MapMode = "FlatFace"
sketch6.AttachmentOffset = App.Placement(App.Vector(0, 0, 23), App.Rotation())
sketch6.addGeometry(Part.Circle(App.Vector(0, 0, 0), App.Vector(0, 0, 1), 4.5), False)
sketch6.addGeometry(Part.Circle(App.Vector(0, 0, 0), App.Vector(0, 0, 1), 2.5), False)
sketch6.addConstraint(Sketcher.Constraint("Coincident", 0, 3, -1, 1))
sketch6.addConstraint(Sketcher.Constraint("Coincident", 1, 3, -1, 1))
sketch6.addConstraint(Sketcher.Constraint("Diameter", 0, Q("9 mm")))
sketch6.addConstraint(Sketcher.Constraint("Diameter", 1, Q("5 mm")))
sketch6.setExpression("Constraints[2]", "Params.sketch6_diameter")
sketch6.setExpression("Constraints[3]", "Params.sketch6_diameter2")
pocket1 = body3.newObject("PartDesign::Pocket", "Pocket")
pocket1.Profile = sketch6
pocket1.setExpression("Length", "Params.pocket1_length")
doc.recompute()

chamfer = body3.newObject("PartDesign::Chamfer", "Chamfer")
chamfer.Base = (pocket1, edges_at(pocket1, [(-4.5, 0, 23), (-2.5, 0, 23)]))
chamfer.setExpression("Size", "Params.chamfer_size")
body4 = doc.addObject("PartDesign::Body", "Body003")
body4.AllowCompound = True

# Sketch on YZ plane
sketch7 = body4.newObject("Sketcher::SketchObject", "Sketch006")
sketch7.AttachmentSupport = (doc.getObject("YZ_Plane003"), [""])
sketch7.MapMode = "FlatFace"
sketch7.addGeometry(Part.LineSegment(App.Vector(11, 0, 0), App.Vector(4.5, 0, 0)), False)
sketch7.addGeometry(Part.LineSegment(App.Vector(4.5, 0, 0), App.Vector(4.5, -2, 0)), False)
sketch7.addGeometry(Part.LineSegment(App.Vector(4.5, -2, 0), App.Vector(11, -2, 0)), False)
sketch7.addGeometry(Part.LineSegment(App.Vector(11, -2, 0), App.Vector(11, 0, 0)), False)
sketch7.addGeometry(Part.LineSegment(App.Vector(2.5, 0, 0), App.Vector(0, 0, 0)), False)
sketch7.addGeometry(Part.LineSegment(App.Vector(0, 0, 0), App.Vector(0, -24, 0)), False)
sketch7.addGeometry(Part.LineSegment(App.Vector(0, -24, 0), App.Vector(2.5, -24, 0)), False)
sketch7.addGeometry(Part.LineSegment(App.Vector(2.5, -24, 0), App.Vector(2.5, 0, 0)), False)
sketch7.addConstraint(Sketcher.Constraint("Coincident", 0, 2, 1, 1))
sketch7.addConstraint(Sketcher.Constraint("Coincident", 1, 2, 2, 1))
sketch7.addConstraint(Sketcher.Constraint("Coincident", 2, 2, 3, 1))
sketch7.addConstraint(Sketcher.Constraint("Coincident", 3, 2, 0, 1))
sketch7.addConstraint(Sketcher.Constraint("Coincident", 4, 2, 5, 1))
sketch7.addConstraint(Sketcher.Constraint("Coincident", 5, 2, 6, 1))
sketch7.addConstraint(Sketcher.Constraint("Coincident", 6, 2, 7, 1))
sketch7.addConstraint(Sketcher.Constraint("Coincident", 7, 2, 4, 1))
sketch7.addConstraint(Sketcher.Constraint("Horizontal", 0))
sketch7.addConstraint(Sketcher.Constraint("Vertical", 1))
sketch7.addConstraint(Sketcher.Constraint("Horizontal", 2))
sketch7.addConstraint(Sketcher.Constraint("Vertical", 3))
sketch7.addConstraint(Sketcher.Constraint("Horizontal", 4))
sketch7.addConstraint(Sketcher.Constraint("Vertical", 5))
sketch7.addConstraint(Sketcher.Constraint("Horizontal", 6))
sketch7.addConstraint(Sketcher.Constraint("Vertical", 7))
sketch7.addConstraint(Sketcher.Constraint("Coincident", 4, 2, -1, 1))
sketch7.addConstraint(Sketcher.Constraint("PointOnObject", 0, 2, -1))
sketch7.addConstraint(Sketcher.Constraint("DistanceY", 1, 2, 1, 1, Q("2 mm")))
sketch7.addConstraint(Sketcher.Constraint("DistanceY", 5, 2, 5, 1, Q("24 mm")))
sketch7.addConstraint(Sketcher.Constraint("DistanceX", 0, 2, 0, 1, Q("6.5 mm")))
sketch7.addConstraint(Sketcher.Constraint("DistanceX", 4, 2, 4, 1, Q("2.5 mm")))
sketch7.addConstraint(Sketcher.Constraint("DistanceX", -1, 1, 2, 2, Q("11 mm")))
sketch7.setExpression("Constraints[18]", "Params.sketch7_height")
sketch7.setExpression("Constraints[19]", "Params.sketch7_height2")
sketch7.setExpression("Constraints[20]", "Params.sketch7_width")
sketch7.setExpression("Constraints[21]", "Params.sketch7_width2")
revolution = body4.newObject("PartDesign::Revolution", "Revolution")
revolution.Profile = sketch7
revolution.ReferenceAxis = (sketch7, ["V_Axis"])
revolution.setExpression("Angle", "Params.revolution_angle")
doc.recompute()

chamfer2 = body4.newObject("PartDesign::Chamfer", "Chamfer001")
chamfer2.Base = (revolution, edges_at(revolution, [(0, -2.5, -24)]))
chamfer2.setExpression("Size", "Params.chamfer2_size")
doc.recompute()

chamfer3 = body4.newObject("PartDesign::Chamfer", "Chamfer002")
chamfer3.Base = (chamfer2, edges_at(chamfer2, [(0, -11, -2), (0, -4.5, -2)]))
chamfer3.setExpression("Size", "Params.chamfer3_size")

# Sketch on YZ plane
sketch8 = body4.newObject("Sketcher::SketchObject", "Sketch007")
sketch8.AttachmentSupport = (doc.getObject("YZ_Plane003"), [""])
sketch8.MapMode = "FlatFace"
sketch8.addGeometry(Part.LineSegment(App.Vector(2.5, -9, 0), App.Vector(2, -9, 0)), False)
sketch8.addGeometry(Part.LineSegment(App.Vector(2, -9, 0), App.Vector(2, -24, 0)), False)
sketch8.addGeometry(Part.LineSegment(App.Vector(2, -24, 0), App.Vector(2.5, -24, 0)), False)
sketch8.addGeometry(Part.LineSegment(App.Vector(2.5, -24, 0), App.Vector(2.5, -9, 0)), False)
sketch8.addConstraint(Sketcher.Constraint("Coincident", 0, 2, 1, 1))
sketch8.addConstraint(Sketcher.Constraint("Coincident", 1, 2, 2, 1))
sketch8.addConstraint(Sketcher.Constraint("Coincident", 2, 2, 3, 1))
sketch8.addConstraint(Sketcher.Constraint("Coincident", 3, 2, 0, 1))
sketch8.addConstraint(Sketcher.Constraint("Horizontal", 0))
sketch8.addConstraint(Sketcher.Constraint("Vertical", 1))
sketch8.addConstraint(Sketcher.Constraint("Horizontal", 2))
sketch8.addConstraint(Sketcher.Constraint("Vertical", 3))
sketch8.addConstraint(Sketcher.Constraint("DistanceY", 1, 2, 1, 1, Q("15 mm")))
sketch8.addConstraint(Sketcher.Constraint("DistanceX", 0, 2, 0, 1, Q("0.5 mm")))
sketch8.addConstraint(Sketcher.Constraint("DistanceX", -1, 1, 0, 2, Q("2 mm")))
sketch8.addConstraint(Sketcher.Constraint("DistanceY", 0, 2, -1, 1, Q("9 mm")))
sketch8.setExpression("Constraints[8]", "Params.sketch8_height")
sketch8.setExpression("Constraints[9]", "Params.sketch8_width")
pocket2 = body4.newObject("PartDesign::Pocket", "Pocket001")
pocket2.Profile = sketch8
pocket2.Type = "ThroughAll"
pocket2.Midplane = True

doc.recompute()
